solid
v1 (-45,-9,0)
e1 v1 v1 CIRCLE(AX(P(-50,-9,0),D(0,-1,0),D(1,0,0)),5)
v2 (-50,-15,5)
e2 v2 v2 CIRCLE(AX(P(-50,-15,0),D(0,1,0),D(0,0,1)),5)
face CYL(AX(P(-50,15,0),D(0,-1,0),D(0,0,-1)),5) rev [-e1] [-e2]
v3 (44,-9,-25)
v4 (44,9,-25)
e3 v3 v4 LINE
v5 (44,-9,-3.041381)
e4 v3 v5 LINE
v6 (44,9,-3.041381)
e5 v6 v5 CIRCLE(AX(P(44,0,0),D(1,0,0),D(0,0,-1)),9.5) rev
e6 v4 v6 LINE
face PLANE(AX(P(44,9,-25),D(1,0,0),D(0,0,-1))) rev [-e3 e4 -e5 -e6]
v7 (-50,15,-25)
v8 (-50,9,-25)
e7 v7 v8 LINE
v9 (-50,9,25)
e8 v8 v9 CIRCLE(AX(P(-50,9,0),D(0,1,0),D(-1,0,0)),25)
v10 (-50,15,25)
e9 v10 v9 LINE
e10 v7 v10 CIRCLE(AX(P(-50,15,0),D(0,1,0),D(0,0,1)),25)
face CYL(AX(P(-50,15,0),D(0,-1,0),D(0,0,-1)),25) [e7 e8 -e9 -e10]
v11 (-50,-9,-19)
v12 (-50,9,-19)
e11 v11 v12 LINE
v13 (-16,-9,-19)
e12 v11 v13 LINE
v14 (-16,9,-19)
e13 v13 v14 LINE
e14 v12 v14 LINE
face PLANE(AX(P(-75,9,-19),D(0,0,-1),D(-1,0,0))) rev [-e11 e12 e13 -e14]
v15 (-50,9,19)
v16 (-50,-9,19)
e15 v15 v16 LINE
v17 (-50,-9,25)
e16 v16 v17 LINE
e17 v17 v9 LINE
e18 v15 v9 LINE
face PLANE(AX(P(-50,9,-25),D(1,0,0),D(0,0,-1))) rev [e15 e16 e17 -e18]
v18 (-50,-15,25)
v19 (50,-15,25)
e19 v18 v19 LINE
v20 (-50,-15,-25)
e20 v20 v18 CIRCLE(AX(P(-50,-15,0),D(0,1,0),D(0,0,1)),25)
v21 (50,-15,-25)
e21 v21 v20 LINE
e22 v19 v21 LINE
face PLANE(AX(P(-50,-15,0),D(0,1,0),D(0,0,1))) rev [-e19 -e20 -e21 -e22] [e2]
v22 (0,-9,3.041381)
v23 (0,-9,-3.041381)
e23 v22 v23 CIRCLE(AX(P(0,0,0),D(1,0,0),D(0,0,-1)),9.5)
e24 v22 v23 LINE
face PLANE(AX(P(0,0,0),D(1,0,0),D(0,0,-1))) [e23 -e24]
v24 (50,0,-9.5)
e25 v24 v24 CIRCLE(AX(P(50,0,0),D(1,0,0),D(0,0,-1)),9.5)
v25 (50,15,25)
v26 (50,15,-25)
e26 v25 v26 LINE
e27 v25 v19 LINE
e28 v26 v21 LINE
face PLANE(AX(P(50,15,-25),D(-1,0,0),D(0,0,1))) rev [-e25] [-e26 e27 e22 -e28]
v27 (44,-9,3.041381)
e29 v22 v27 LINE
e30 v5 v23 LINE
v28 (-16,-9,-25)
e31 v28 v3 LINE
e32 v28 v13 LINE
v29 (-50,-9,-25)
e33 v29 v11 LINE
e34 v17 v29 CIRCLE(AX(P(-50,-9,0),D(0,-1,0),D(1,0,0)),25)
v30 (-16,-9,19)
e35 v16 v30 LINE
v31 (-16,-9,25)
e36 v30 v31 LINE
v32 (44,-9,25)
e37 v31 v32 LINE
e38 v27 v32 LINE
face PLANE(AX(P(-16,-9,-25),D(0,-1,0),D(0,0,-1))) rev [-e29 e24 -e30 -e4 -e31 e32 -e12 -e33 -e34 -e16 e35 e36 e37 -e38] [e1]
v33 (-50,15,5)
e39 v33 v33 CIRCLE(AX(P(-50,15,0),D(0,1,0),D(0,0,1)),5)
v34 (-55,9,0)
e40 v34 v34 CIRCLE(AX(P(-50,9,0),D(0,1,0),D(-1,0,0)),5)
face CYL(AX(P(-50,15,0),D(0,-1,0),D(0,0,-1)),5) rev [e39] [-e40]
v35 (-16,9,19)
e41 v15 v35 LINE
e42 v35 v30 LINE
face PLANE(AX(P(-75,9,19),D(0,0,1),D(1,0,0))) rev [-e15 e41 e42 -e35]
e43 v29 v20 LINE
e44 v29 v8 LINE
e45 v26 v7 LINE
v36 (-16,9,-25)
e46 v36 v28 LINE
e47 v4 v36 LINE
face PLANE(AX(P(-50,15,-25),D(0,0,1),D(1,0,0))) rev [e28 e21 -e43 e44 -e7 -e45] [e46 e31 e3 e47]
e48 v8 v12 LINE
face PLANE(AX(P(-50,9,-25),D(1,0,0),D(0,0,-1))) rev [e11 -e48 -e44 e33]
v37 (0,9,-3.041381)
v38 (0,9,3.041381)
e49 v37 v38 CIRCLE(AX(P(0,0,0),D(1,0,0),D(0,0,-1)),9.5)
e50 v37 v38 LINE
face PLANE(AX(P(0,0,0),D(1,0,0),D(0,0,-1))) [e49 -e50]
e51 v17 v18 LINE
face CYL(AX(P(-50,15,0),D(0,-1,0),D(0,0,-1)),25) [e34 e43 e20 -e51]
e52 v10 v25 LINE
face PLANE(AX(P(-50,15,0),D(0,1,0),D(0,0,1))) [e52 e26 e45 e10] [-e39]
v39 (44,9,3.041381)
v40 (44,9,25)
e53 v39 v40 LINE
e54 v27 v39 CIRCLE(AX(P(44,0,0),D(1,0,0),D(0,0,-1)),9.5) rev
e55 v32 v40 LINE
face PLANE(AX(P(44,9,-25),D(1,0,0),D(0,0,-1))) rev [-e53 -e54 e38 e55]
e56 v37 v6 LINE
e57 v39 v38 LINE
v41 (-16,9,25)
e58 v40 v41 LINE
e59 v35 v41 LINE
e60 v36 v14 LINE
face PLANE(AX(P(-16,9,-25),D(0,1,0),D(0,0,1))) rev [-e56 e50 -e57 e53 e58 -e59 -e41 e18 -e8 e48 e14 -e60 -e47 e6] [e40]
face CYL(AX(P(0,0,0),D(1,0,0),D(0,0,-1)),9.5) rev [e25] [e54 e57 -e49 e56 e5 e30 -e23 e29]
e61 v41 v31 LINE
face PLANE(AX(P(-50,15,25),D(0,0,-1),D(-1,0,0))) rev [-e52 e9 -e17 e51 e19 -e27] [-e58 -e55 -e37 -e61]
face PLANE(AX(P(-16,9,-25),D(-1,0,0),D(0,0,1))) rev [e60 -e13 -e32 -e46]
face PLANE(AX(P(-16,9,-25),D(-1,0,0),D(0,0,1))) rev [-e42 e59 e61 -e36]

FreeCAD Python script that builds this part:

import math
import FreeCAD as App
import Part
import Sketcher
from FreeCAD import Vector

doc = App.newDocument("Part")
body = doc.addObject("PartDesign::Body", "Body")

sketch1 = body.newObject("Sketcher::SketchObject", "Sketch")
sketch1.AttachmentSupport = (doc.getObject("XZ_Plane"), [""])
sketch1.MapMode = "FlatFace"
sketch1.addGeometry([
    Part.LineSegment(Vector(50, -25, 0), Vector(-50, -25, 0)),
    Part.ArcOfCircle(Part.Circle(Vector(-50, 0, 0), Vector(0, 0, 1), 25), math.radians(90), math.radians(270)),
    Part.LineSegment(Vector(-50, 25, 0), Vector(50, 25, 0)),
    Part.LineSegment(Vector(50, 25, 0), Vector(50, -25, 0)),
    Part.Circle(Vector(-50, 0, 0), Vector(0, 0, 1), 5),
], False)
sketch1.addConstraint([
    Sketcher.Constraint("Tangent", 0, 2, 1, 2),
    Sketcher.Constraint("Tangent", 1, 1, 2, 1),
    Sketcher.Constraint("Coincident", 2, 2, 3, 1),
    Sketcher.Constraint("Coincident", 3, 2, 0, 1),
    Sketcher.Constraint("Horizontal", 0),
    Sketcher.Constraint("Horizontal", 2),
    Sketcher.Constraint("Vertical", 3),
    Sketcher.Constraint("Coincident", 4, 3, 1, 3),
    Sketcher.Constraint("Symmetric", 0, 2, 2, 2, -1, 1),
    Sketcher.Constraint("Diameter", 4, 10.0),
    Sketcher.Constraint("Radius", 1, 25.0),
    Sketcher.Constraint("DistanceX", 0, 2, 0, 1, 100.0),
])
pad1 = body.newObject("PartDesign::Pad", "Pad")
pad1.Profile = sketch1
pad1.Length = 30
pad1.Midplane = True

sketch2 = body.newObject("Sketcher::SketchObject", "Sketch001")
sketch2.AttachmentSupport = (doc.getObject("YZ_Plane"), [""])
sketch2.MapMode = "FlatFace"
sketch2.AttachmentOffset = App.Placement(Vector(0, 0, 50), App.Rotation())
sketch2.addGeometry(Part.Circle(Vector(0, 0, 0), Vector(0, 0, 1), 10), False)
sketch2.addConstraint([
    Sketcher.Constraint("Coincident", 0, 3, -1, 1),
    Sketcher.Constraint("Diameter", 0, 19.0),
])
pocket1 = body.newObject("PartDesign::Pocket", "Pocket")
pocket1.Profile = sketch2
pocket1.Length = 50

sketch3 = body.newObject("Sketcher::SketchObject", "Sketch002")
sketch3.AttachmentSupport = (doc.getObject("XY_Plane"), [""])
sketch3.MapMode = "FlatFace"
sketch3.addGeometry([
    Part.LineSegment(Vector(-16, 9, 0), Vector(-16, -9, 0)),
    Part.LineSegment(Vector(-16, -9, 0), Vector(44, -9, 0)),
    Part.LineSegment(Vector(44, -9, 0), Vector(44, 9, 0)),
    Part.LineSegment(Vector(44, 9, 0), Vector(-16, 9, 0)),
    Part.LineSegment(Vector(-75, 9, 0), Vector(-75, -9, 0)),
    Part.LineSegment(Vector(-75, -9, 0), Vector(-50, -9, 0)),
    Part.LineSegment(Vector(-50, -9, 0), Vector(-50, 9, 0)),
    Part.LineSegment(Vector(-50, 9, 0), Vector(-75, 9, 0)),
], False)
sketch3.addConstraint([
    Sketcher.Constraint("Coincident", 0, 2, 1, 1),
    Sketcher.Constraint("Coincident", 1, 2, 2, 1),
    Sketcher.Constraint("Coincident", 2, 2, 3, 1),
    Sketcher.Constraint("Coincident", 3, 2, 0, 1),
    Sketcher.Constraint("Coincident", 4, 2, 5, 1),
    Sketcher.Constraint("Coincident", 5, 2, 6, 1),
    Sketcher.Constraint("Coincident", 6, 2, 7, 1),
    Sketcher.Constraint("Coincident", 7, 2, 4, 1),
    Sketcher.Constraint("Vertical", 0),
    Sketcher.Constraint("Horizontal", 1),
    Sketcher.Constraint("Vertical", 2),
    Sketcher.Constraint("Horizontal", 3),
    Sketcher.Constraint("Vertical", 4),
    Sketcher.Constraint("Horizontal", 5),
    Sketcher.Constraint("Vertical", 6),
    Sketcher.Constraint("Horizontal", 7),
    Sketcher.Constraint("Horizontal", 1, 2, 4, 2),
    Sketcher.Constraint("Horizontal", 3, 2, 6, 2),
    Sketcher.Constraint("DistanceX", 1, 1, 1, 2, 60.0),
    Sketcher.Constraint("DistanceX", 5, 1, 5, 2, 25.0),
    Sketcher.Constraint("DistanceY", 0, 2, 0, 1, 18.0),
    Sketcher.Constraint("DistanceX", 0, 2, -1, 1, 16.0),
    Sketcher.Constraint("DistanceY", 0, 2, -1, 1, 9.0),
    Sketcher.Constraint("DistanceX", 4, 2, -1, 1, 75.0),
])
pocket2 = body.newObject("PartDesign::Pocket", "Pocket001")
pocket2.Profile = sketch3
pocket2.Type = "ThroughAll"
pocket2.Midplane = True

sketch4 = body.newObject("Sketcher::SketchObject", "Sketch003")
sketch4.AttachmentSupport = (doc.getObject("YZ_Plane"), [""])
sketch4.MapMode = "FlatFace"
sketch4.AttachmentOffset = App.Placement(Vector(0, 0, -16), App.Rotation())
sketch4.addGeometry([
    Part.LineSegment(Vector(9, 19, 0), Vector(-9, 19, 0)),
    Part.LineSegment(Vector(-9, 19, 0), Vector(-9, -19, 0)),
    Part.LineSegment(Vector(-9, -19, 0), Vector(9, -19, 0)),
    Part.LineSegment(Vector(9, -19, 0), Vector(9, 19, 0)),
], False)
sketch4.addConstraint([
    Sketcher.Constraint("Coincident", 0, 2, 1, 1),
    Sketcher.Constraint("Coincident", 1, 2, 2, 1),
    Sketcher.Constraint("Coincident", 2, 2, 3, 1),
    Sketcher.Constraint("Coincident", 3, 2, 0, 1),
    Sketcher.Constraint("Horizontal", 0),
    Sketcher.Constraint("Vertical", 1),
    Sketcher.Constraint("Horizontal", 2),
    Sketcher.Constraint("Vertical", 3),
    Sketcher.Constraint("Symmetric", 0, 2, 2, 2, -1, 1),
    Sketcher.Constraint("DistanceX", 0, 2, 0, 1, 18.0),
    Sketcher.Constraint("DistanceY", 1, 2, 1, 1, 38.0),
])
pocket3 = body.newObject("PartDesign::Pocket", "Pocket002")
pocket3.Profile = sketch4
pocket3.Type = "ThroughAll"

doc.recompute()
